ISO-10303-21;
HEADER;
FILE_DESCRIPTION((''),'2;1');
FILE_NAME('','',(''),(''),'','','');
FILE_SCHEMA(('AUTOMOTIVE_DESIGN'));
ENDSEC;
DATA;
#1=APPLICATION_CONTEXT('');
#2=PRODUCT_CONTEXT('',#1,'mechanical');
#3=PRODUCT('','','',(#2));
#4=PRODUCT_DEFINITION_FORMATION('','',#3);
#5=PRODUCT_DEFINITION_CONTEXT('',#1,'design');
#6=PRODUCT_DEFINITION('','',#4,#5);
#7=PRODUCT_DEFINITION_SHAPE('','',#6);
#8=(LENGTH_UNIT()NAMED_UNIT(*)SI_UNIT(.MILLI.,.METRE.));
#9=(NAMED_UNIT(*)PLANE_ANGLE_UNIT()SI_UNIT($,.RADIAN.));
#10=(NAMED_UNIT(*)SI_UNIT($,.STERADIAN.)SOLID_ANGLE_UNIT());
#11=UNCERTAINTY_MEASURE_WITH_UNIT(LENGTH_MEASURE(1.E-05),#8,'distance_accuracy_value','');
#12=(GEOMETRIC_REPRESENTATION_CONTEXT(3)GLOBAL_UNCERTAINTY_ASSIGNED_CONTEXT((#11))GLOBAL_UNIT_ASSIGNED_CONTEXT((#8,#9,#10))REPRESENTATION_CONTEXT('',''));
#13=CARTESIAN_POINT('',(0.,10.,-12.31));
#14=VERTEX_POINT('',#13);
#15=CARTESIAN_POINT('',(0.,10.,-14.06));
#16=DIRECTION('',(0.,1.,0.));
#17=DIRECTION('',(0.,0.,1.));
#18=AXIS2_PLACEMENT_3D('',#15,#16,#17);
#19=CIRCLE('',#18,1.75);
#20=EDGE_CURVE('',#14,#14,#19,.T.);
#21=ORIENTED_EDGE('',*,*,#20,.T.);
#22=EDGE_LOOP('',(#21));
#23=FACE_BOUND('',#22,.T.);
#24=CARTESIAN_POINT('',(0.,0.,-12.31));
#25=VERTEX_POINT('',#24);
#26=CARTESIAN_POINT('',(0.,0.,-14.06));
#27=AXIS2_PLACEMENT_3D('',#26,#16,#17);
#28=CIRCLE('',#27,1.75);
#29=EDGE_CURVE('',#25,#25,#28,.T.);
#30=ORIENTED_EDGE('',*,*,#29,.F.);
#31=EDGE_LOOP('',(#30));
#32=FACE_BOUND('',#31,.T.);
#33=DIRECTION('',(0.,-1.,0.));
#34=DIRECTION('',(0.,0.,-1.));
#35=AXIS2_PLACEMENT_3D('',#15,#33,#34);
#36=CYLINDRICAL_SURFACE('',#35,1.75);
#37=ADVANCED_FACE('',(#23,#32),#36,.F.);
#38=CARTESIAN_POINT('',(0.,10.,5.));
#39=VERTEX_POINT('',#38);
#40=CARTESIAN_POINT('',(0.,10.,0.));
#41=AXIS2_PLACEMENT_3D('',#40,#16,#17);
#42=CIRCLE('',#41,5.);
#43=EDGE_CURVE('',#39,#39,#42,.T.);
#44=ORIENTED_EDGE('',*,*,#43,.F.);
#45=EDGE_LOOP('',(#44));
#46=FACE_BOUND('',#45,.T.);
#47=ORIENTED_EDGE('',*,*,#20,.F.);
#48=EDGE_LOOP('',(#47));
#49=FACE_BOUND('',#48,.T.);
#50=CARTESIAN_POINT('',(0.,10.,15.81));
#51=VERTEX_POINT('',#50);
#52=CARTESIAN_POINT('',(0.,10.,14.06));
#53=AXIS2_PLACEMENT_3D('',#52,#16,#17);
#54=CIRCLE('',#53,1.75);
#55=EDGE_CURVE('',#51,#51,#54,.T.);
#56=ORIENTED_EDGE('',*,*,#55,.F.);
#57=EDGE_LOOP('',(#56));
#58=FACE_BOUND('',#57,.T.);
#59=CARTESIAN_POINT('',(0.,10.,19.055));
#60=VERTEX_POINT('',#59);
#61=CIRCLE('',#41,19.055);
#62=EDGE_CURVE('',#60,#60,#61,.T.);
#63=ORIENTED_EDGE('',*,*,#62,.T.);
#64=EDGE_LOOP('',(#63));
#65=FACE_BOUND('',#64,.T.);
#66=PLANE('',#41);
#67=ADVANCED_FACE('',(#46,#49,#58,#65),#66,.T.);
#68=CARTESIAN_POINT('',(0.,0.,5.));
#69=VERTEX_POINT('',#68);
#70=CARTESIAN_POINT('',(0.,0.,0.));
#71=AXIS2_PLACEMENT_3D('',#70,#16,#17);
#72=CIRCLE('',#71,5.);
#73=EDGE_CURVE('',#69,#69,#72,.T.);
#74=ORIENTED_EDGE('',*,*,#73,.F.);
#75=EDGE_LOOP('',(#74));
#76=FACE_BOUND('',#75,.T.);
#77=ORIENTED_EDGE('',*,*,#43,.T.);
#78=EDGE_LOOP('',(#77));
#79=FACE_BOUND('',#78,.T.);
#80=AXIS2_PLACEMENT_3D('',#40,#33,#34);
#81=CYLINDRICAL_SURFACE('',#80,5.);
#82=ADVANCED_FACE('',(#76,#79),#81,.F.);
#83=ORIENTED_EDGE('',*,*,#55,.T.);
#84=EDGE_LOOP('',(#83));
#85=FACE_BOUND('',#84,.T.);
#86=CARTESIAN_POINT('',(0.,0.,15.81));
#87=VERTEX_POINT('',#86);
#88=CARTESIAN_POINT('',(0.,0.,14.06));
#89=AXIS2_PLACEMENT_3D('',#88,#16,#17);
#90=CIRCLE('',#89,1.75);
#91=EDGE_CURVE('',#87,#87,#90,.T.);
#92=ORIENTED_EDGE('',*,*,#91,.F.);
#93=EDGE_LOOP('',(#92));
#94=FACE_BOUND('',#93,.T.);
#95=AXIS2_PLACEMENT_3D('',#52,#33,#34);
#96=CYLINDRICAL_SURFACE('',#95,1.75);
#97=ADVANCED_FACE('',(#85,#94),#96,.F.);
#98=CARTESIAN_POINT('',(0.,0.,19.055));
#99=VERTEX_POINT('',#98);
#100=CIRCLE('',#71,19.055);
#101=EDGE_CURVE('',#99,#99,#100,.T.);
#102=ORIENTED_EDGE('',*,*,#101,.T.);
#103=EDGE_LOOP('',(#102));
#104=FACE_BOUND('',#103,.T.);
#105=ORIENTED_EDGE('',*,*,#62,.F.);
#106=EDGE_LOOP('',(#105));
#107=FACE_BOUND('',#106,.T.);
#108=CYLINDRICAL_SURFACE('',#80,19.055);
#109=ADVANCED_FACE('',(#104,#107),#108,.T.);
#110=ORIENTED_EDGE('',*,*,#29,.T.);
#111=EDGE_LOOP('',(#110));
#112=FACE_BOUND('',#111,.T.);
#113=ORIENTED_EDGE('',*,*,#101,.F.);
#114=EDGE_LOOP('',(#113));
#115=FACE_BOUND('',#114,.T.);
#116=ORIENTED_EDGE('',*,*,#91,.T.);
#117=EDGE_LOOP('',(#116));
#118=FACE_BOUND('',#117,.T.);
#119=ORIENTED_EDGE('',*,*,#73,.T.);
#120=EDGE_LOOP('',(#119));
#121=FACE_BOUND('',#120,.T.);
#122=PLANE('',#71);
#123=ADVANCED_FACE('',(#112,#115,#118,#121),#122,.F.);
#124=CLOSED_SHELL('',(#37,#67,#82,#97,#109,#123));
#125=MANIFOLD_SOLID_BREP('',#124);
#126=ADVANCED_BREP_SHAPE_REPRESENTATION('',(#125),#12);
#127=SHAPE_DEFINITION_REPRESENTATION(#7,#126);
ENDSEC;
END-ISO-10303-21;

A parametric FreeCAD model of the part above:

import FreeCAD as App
import Part
import Sketcher

doc = App.newDocument("Part")
params = doc.addObject("Spreadsheet::Sheet", "Params")
for row, (alias, value) in enumerate([
    ("sketch1_diameter", "10 mm"),
    ("sketch1_diameter2", "3.5 mm"),
    ("sketch1_diameter3", "38.11 mm"),
    ("pad1_length", "10 mm"),
], start=1):
    params.set(f"A{row}", alias)
    params.set(f"B{row}", "=" + value)
    params.setAlias(f"B{row}", alias)

body = doc.addObject("PartDesign::Body", "Body")

sketch1 = body.newObject("Sketcher::SketchObject", "Sketch")
sketch1.AttachmentSupport = (doc.getObject("XZ_Plane"), [""])
sketch1.MapMode = "FlatFace"
sketch1.addGeometry([
    Part.Circle(App.Vector(0, 0, 0), App.Vector(0, 0, 1), 19.1),
    Part.Circle(App.Vector(0, 14.1, 0), App.Vector(0, 0, 1), 1.8),
    Part.Circle(App.Vector(0, 0, 0), App.Vector(0, 0, 1), 5),
    Part.Circle(App.Vector(0, -14.1, 0), App.Vector(0, 0, 1), 1.8),
], False)
sketch1.addConstraint([
    Sketcher.Constraint("Coincident", 0, 3, -1, 1),
    Sketcher.Constraint("Coincident", 2, 3, -1, 1),
    Sketcher.Constraint("Equal", 1, 3),
    Sketcher.Constraint("Symmetric", 1, 3, 3, 3, -1, 1),
    Sketcher.Constraint("PointOnObject", 1, 3, -2),
    Sketcher.Constraint("Diameter", 2, 10.0),
    Sketcher.Constraint("Diameter", 1, 3.5),
    Sketcher.Constraint("Diameter", 0, 38.11),
    Sketcher.Constraint("DistanceY", -1, 1, 1, 3, 14.06),
])
sketch1.setExpression("Constraints[5]", "Params.sketch1_diameter")
sketch1.setExpression("Constraints[6]", "Params.sketch1_diameter2")
sketch1.setExpression("Constraints[7]", "Params.sketch1_diameter3")
pad1 = body.newObject("PartDesign::Pad", "Pad")
pad1.Profile = sketch1
pad1.setExpression("Length", "Params.pad1_length")
pad1.Reversed = True

doc.recompute()
